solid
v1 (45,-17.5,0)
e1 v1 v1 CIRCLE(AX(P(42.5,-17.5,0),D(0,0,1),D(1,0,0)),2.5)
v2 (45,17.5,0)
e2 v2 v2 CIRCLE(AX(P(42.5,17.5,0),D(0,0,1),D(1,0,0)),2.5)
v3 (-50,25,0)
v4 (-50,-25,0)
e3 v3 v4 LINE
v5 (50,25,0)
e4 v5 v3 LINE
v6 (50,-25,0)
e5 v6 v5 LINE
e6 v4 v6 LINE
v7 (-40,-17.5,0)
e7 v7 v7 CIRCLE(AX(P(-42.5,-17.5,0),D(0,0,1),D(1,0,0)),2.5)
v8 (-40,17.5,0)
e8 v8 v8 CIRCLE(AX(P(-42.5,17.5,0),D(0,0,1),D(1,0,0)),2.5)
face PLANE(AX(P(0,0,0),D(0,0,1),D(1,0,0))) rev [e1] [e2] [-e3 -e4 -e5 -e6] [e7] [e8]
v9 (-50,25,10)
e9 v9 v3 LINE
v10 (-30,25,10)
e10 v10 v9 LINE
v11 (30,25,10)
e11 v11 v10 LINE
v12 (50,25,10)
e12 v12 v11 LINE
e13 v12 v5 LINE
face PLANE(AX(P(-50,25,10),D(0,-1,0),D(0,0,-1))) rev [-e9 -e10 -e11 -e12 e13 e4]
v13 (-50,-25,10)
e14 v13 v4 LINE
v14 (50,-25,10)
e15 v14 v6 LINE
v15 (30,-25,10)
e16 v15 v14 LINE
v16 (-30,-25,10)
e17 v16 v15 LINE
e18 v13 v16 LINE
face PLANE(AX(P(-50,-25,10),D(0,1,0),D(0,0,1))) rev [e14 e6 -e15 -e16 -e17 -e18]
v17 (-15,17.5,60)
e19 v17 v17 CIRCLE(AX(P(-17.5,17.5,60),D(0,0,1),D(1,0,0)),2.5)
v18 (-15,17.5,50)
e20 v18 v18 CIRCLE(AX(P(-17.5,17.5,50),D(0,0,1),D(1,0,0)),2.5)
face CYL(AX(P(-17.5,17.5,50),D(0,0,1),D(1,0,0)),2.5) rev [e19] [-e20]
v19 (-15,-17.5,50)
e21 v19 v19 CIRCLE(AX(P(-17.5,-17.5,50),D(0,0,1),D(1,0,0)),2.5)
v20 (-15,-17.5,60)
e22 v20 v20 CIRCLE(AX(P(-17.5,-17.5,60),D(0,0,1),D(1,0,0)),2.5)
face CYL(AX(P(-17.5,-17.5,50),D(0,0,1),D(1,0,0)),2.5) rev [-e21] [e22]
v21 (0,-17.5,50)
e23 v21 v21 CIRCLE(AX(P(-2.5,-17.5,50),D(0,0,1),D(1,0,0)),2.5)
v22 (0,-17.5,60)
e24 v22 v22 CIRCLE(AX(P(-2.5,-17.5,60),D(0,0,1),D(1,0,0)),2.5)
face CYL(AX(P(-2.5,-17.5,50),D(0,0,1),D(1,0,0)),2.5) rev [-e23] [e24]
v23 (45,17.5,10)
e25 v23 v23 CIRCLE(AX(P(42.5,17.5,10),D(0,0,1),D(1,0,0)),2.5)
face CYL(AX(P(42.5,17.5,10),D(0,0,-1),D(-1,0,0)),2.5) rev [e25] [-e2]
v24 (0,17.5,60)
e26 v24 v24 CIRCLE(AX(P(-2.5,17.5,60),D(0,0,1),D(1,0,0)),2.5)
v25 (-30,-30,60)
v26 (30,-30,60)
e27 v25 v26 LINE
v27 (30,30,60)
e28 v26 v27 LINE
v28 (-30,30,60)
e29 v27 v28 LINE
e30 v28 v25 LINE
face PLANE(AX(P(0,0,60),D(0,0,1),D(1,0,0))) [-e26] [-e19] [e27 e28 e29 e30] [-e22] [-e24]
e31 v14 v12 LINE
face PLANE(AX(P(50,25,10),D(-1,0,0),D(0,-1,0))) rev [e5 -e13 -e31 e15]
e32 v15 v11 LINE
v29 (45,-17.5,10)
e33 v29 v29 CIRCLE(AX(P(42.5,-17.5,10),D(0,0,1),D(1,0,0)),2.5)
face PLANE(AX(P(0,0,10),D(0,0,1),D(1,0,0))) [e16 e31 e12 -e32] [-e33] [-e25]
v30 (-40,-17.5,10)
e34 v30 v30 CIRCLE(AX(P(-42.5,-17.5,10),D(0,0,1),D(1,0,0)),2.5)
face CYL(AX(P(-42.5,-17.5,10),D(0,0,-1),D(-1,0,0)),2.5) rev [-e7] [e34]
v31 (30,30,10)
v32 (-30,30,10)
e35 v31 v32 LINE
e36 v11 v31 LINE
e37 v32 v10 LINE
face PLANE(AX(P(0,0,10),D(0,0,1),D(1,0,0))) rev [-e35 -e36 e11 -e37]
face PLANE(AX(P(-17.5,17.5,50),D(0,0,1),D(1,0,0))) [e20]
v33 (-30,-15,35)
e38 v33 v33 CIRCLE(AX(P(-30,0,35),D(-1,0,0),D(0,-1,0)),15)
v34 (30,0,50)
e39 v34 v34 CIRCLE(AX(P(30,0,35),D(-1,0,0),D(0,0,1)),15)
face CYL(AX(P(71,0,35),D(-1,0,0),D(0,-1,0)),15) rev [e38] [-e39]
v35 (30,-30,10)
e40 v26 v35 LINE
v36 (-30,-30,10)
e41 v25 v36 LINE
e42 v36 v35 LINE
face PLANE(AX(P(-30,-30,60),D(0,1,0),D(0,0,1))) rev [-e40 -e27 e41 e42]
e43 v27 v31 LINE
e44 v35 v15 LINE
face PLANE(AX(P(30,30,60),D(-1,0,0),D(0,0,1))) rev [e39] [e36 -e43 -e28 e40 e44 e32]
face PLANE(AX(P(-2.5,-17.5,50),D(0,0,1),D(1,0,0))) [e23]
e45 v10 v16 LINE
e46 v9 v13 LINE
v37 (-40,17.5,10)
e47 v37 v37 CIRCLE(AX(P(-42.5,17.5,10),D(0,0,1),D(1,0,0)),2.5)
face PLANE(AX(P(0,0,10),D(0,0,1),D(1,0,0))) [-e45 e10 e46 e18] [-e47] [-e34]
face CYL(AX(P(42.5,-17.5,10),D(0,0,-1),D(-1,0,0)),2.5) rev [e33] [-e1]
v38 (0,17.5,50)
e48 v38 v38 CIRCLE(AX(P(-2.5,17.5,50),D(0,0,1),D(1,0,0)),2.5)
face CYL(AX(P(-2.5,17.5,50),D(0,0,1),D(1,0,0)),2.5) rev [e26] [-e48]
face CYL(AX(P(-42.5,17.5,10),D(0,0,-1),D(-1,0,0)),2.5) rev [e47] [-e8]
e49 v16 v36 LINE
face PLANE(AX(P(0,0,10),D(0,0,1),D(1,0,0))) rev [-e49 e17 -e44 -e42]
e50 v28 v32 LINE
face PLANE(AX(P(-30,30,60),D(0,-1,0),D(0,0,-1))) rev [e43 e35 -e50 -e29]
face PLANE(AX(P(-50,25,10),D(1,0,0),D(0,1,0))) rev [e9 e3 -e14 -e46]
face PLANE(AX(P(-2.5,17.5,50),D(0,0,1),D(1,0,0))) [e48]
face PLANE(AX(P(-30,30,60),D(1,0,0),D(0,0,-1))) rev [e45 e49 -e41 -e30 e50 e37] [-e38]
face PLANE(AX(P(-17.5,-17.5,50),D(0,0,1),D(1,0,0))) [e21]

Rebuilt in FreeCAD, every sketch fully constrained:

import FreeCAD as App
import Part
import Sketcher

doc = App.newDocument("Part")
body = doc.addObject("PartDesign::Body", "Body")

# Sketch on XY plane
sketch1 = body.newObject("Sketcher::SketchObject", "Sketch")
sketch1.AttachmentSupport = (doc.getObject("XY_Plane"), [""])
sketch1.MapMode = "FlatFace"
sketch1.addGeometry([
    Part.LineSegment(App.Vector(-50, 25, 0), App.Vector(-50, -25, 0)),  # 0
    Part.LineSegment(App.Vector(-50, -25, 0), App.Vector(50, -25, 0)),  # 1
    Part.LineSegment(App.Vector(50, -25, 0), App.Vector(50, 25, 0)),  # 2
    Part.LineSegment(App.Vector(50, 25, 0), App.Vector(-50, 25, 0)),  # 3
    Part.Circle(App.Vector(-42.5, -17.5, 0), App.Vector(0, 0, 1), 2.5),  # 4
    Part.Circle(App.Vector(42.5, -17.5, 0), App.Vector(0, 0, 1), 2.5),  # 5
    Part.Circle(App.Vector(-42.5, 17.5, 0), App.Vector(0, 0, 1), 2.5),  # 6
    Part.Circle(App.Vector(42.5, 17.5, 0), App.Vector(0, 0, 1), 2.5),  # 7
], False)
sketch1.addConstraint([
    Sketcher.Constraint("Coincident", 0, 2, 1, 1),
    Sketcher.Constraint("Coincident", 1, 2, 2, 1),
    Sketcher.Constraint("Coincident", 2, 2, 3, 1),
    Sketcher.Constraint("Coincident", 3, 2, 0, 1),
    Sketcher.Constraint("Vertical", 0),
    Sketcher.Constraint("Horizontal", 1),
    Sketcher.Constraint("Vertical", 2),
    Sketcher.Constraint("Horizontal", 3),
    Sketcher.Constraint("Equal", 4, 5),
    Sketcher.Constraint("Equal", 5, 6),
    Sketcher.Constraint("Equal", 6, 7),
    Sketcher.Constraint("Symmetric", 5, 3, 6, 3, -1, 1),
    Sketcher.Constraint("Symmetric", 4, 3, 7, 3, -1, 1),
    Sketcher.Constraint("Symmetric", 0, 2, 2, 2, -1, 1),
    Sketcher.Constraint("Symmetric", 4, 3, 5, 3, -2),
    Sketcher.Constraint("Diameter", 4, 5.0),
    Sketcher.Constraint("DistanceX", 1, 1, 1, 2, 100.0),
    Sketcher.Constraint("DistanceY", 0, 2, 0, 1, 50.0),
    Sketcher.Constraint("DistanceX", 4, 3, 5, 3, 85.0),
    Sketcher.Constraint("DistanceY", 4, 3, 6, 3, 35.0),
])
pad1 = body.newObject("PartDesign::Pad", "Pad")
pad1.Profile = sketch1
pad1.Length = 10

# Sketch on XY plane
sketch2 = body.newObject("Sketcher::SketchObject", "Sketch001")
sketch2.AttachmentSupport = (doc.getObject("XY_Plane"), [""])
sketch2.MapMode = "FlatFace"
sketch2.AttachmentOffset = App.Placement(App.Vector(0, 0, 10), App.Rotation())
sketch2.addGeometry([
    Part.LineSegment(App.Vector(-30, 30, 0), App.Vector(-30, -30, 0)),
    Part.LineSegment(App.Vector(-30, -30, 0), App.Vector(30, -30, 0)),
    Part.LineSegment(App.Vector(30, -30, 0), App.Vector(30, 30, 0)),
    Part.LineSegment(App.Vector(30, 30, 0), App.Vector(-30, 30, 0)),
], False)
sketch2.addConstraint([
    Sketcher.Constraint("Coincident", 0, 2, 1, 1),
    Sketcher.Constraint("Coincident", 1, 2, 2, 1),
    Sketcher.Constraint("Coincident", 2, 2, 3, 1),
    Sketcher.Constraint("Coincident", 3, 2, 0, 1),
    Sketcher.Constraint("Vertical", 0),
    Sketcher.Constraint("Horizontal", 1),
    Sketcher.Constraint("Vertical", 2),
    Sketcher.Constraint("Horizontal", 3),
    Sketcher.Constraint("Symmetric", 0, 2, 2, 2, -1, 1),
    Sketcher.Constraint("Equal", 3, 0),
    Sketcher.Constraint("DistanceX", 1, 1, 1, 2, 60.0),
])
pad2 = body.newObject("PartDesign::Pad", "Pad001")
pad2.Profile = sketch2
pad2.Length = 50

# Sketch on YZ plane
sketch3 = body.newObject("Sketcher::SketchObject", "Sketch002")
sketch3.AttachmentSupport = (doc.getObject("YZ_Plane"), [""])
sketch3.MapMode = "FlatFace"
sketch3.AttachmentOffset = App.Placement(App.Vector(0, 0, -30), App.Rotation())
sketch3.addGeometry(Part.Circle(App.Vector(0, 35, 0), App.Vector(0, 0, 1), 15), False)
sketch3.addConstraint([
    Sketcher.Constraint("PointOnObject", 0, 3, -2),
    Sketcher.Constraint("Diameter", 0, 30.0),
    Sketcher.Constraint("DistanceY", -1, 1, 0, 3, 35.0),
])
pocket1 = body.newObject("PartDesign::Pocket", "Pocket")
pocket1.Profile = sketch3
pocket1.Length = 101
pocket1.Reversed = True

# Sketch on XY plane
sketch4 = body.newObject("Sketcher::SketchObject", "Sketch003")
sketch4.AttachmentSupport = (doc.getObject("XY_Plane"), [""])
sketch4.MapMode = "FlatFace"
sketch4.AttachmentOffset = App.Placement(App.Vector(0, 0, 60), App.Rotation())
sketch4.addGeometry([
    Part.Circle(App.Vector(-17.5, 17.5, 0), App.Vector(0, 0, 1), 2.5),
    Part.Circle(App.Vector(-2.5, 17.5, 0), App.Vector(0, 0, 1), 2.5),
    Part.Circle(App.Vector(-2.5, -17.5, 0), App.Vector(0, 0, 1), 2.5),
    Part.Circle(App.Vector(-17.5, -17.5, 0), App.Vector(0, 0, 1), 2.5),
], False)
sketch4.addConstraint([
    Sketcher.Constraint("Equal", 0, 1),
    Sketcher.Constraint("Equal", 1, 2),
    Sketcher.Constraint("Equal", 2, 3),
    Sketcher.Constraint("Symmetric", 1, 3, 2, 3, -1),
    Sketcher.Constraint("Symmetric", 0, 3, 3, 3, -1),
    Sketcher.Constraint("Horizontal", 0, 3, 1, 3),
    Sketcher.Constraint("Diameter", 0, 5.0),
    Sketcher.Constraint("DistanceX", 0, 3, 1, 3, 15.0),
    Sketcher.Constraint("DistanceY", 2, 3, 1, 3, 35.0),
    Sketcher.Constraint("DistanceX", 0, 3, -1, 1, 17.5),
])
pocket2 = body.newObject("PartDesign::Pocket", "Pocket001")
pocket2.Profile = sketch4
pocket2.Length = 10

doc.recompute()
